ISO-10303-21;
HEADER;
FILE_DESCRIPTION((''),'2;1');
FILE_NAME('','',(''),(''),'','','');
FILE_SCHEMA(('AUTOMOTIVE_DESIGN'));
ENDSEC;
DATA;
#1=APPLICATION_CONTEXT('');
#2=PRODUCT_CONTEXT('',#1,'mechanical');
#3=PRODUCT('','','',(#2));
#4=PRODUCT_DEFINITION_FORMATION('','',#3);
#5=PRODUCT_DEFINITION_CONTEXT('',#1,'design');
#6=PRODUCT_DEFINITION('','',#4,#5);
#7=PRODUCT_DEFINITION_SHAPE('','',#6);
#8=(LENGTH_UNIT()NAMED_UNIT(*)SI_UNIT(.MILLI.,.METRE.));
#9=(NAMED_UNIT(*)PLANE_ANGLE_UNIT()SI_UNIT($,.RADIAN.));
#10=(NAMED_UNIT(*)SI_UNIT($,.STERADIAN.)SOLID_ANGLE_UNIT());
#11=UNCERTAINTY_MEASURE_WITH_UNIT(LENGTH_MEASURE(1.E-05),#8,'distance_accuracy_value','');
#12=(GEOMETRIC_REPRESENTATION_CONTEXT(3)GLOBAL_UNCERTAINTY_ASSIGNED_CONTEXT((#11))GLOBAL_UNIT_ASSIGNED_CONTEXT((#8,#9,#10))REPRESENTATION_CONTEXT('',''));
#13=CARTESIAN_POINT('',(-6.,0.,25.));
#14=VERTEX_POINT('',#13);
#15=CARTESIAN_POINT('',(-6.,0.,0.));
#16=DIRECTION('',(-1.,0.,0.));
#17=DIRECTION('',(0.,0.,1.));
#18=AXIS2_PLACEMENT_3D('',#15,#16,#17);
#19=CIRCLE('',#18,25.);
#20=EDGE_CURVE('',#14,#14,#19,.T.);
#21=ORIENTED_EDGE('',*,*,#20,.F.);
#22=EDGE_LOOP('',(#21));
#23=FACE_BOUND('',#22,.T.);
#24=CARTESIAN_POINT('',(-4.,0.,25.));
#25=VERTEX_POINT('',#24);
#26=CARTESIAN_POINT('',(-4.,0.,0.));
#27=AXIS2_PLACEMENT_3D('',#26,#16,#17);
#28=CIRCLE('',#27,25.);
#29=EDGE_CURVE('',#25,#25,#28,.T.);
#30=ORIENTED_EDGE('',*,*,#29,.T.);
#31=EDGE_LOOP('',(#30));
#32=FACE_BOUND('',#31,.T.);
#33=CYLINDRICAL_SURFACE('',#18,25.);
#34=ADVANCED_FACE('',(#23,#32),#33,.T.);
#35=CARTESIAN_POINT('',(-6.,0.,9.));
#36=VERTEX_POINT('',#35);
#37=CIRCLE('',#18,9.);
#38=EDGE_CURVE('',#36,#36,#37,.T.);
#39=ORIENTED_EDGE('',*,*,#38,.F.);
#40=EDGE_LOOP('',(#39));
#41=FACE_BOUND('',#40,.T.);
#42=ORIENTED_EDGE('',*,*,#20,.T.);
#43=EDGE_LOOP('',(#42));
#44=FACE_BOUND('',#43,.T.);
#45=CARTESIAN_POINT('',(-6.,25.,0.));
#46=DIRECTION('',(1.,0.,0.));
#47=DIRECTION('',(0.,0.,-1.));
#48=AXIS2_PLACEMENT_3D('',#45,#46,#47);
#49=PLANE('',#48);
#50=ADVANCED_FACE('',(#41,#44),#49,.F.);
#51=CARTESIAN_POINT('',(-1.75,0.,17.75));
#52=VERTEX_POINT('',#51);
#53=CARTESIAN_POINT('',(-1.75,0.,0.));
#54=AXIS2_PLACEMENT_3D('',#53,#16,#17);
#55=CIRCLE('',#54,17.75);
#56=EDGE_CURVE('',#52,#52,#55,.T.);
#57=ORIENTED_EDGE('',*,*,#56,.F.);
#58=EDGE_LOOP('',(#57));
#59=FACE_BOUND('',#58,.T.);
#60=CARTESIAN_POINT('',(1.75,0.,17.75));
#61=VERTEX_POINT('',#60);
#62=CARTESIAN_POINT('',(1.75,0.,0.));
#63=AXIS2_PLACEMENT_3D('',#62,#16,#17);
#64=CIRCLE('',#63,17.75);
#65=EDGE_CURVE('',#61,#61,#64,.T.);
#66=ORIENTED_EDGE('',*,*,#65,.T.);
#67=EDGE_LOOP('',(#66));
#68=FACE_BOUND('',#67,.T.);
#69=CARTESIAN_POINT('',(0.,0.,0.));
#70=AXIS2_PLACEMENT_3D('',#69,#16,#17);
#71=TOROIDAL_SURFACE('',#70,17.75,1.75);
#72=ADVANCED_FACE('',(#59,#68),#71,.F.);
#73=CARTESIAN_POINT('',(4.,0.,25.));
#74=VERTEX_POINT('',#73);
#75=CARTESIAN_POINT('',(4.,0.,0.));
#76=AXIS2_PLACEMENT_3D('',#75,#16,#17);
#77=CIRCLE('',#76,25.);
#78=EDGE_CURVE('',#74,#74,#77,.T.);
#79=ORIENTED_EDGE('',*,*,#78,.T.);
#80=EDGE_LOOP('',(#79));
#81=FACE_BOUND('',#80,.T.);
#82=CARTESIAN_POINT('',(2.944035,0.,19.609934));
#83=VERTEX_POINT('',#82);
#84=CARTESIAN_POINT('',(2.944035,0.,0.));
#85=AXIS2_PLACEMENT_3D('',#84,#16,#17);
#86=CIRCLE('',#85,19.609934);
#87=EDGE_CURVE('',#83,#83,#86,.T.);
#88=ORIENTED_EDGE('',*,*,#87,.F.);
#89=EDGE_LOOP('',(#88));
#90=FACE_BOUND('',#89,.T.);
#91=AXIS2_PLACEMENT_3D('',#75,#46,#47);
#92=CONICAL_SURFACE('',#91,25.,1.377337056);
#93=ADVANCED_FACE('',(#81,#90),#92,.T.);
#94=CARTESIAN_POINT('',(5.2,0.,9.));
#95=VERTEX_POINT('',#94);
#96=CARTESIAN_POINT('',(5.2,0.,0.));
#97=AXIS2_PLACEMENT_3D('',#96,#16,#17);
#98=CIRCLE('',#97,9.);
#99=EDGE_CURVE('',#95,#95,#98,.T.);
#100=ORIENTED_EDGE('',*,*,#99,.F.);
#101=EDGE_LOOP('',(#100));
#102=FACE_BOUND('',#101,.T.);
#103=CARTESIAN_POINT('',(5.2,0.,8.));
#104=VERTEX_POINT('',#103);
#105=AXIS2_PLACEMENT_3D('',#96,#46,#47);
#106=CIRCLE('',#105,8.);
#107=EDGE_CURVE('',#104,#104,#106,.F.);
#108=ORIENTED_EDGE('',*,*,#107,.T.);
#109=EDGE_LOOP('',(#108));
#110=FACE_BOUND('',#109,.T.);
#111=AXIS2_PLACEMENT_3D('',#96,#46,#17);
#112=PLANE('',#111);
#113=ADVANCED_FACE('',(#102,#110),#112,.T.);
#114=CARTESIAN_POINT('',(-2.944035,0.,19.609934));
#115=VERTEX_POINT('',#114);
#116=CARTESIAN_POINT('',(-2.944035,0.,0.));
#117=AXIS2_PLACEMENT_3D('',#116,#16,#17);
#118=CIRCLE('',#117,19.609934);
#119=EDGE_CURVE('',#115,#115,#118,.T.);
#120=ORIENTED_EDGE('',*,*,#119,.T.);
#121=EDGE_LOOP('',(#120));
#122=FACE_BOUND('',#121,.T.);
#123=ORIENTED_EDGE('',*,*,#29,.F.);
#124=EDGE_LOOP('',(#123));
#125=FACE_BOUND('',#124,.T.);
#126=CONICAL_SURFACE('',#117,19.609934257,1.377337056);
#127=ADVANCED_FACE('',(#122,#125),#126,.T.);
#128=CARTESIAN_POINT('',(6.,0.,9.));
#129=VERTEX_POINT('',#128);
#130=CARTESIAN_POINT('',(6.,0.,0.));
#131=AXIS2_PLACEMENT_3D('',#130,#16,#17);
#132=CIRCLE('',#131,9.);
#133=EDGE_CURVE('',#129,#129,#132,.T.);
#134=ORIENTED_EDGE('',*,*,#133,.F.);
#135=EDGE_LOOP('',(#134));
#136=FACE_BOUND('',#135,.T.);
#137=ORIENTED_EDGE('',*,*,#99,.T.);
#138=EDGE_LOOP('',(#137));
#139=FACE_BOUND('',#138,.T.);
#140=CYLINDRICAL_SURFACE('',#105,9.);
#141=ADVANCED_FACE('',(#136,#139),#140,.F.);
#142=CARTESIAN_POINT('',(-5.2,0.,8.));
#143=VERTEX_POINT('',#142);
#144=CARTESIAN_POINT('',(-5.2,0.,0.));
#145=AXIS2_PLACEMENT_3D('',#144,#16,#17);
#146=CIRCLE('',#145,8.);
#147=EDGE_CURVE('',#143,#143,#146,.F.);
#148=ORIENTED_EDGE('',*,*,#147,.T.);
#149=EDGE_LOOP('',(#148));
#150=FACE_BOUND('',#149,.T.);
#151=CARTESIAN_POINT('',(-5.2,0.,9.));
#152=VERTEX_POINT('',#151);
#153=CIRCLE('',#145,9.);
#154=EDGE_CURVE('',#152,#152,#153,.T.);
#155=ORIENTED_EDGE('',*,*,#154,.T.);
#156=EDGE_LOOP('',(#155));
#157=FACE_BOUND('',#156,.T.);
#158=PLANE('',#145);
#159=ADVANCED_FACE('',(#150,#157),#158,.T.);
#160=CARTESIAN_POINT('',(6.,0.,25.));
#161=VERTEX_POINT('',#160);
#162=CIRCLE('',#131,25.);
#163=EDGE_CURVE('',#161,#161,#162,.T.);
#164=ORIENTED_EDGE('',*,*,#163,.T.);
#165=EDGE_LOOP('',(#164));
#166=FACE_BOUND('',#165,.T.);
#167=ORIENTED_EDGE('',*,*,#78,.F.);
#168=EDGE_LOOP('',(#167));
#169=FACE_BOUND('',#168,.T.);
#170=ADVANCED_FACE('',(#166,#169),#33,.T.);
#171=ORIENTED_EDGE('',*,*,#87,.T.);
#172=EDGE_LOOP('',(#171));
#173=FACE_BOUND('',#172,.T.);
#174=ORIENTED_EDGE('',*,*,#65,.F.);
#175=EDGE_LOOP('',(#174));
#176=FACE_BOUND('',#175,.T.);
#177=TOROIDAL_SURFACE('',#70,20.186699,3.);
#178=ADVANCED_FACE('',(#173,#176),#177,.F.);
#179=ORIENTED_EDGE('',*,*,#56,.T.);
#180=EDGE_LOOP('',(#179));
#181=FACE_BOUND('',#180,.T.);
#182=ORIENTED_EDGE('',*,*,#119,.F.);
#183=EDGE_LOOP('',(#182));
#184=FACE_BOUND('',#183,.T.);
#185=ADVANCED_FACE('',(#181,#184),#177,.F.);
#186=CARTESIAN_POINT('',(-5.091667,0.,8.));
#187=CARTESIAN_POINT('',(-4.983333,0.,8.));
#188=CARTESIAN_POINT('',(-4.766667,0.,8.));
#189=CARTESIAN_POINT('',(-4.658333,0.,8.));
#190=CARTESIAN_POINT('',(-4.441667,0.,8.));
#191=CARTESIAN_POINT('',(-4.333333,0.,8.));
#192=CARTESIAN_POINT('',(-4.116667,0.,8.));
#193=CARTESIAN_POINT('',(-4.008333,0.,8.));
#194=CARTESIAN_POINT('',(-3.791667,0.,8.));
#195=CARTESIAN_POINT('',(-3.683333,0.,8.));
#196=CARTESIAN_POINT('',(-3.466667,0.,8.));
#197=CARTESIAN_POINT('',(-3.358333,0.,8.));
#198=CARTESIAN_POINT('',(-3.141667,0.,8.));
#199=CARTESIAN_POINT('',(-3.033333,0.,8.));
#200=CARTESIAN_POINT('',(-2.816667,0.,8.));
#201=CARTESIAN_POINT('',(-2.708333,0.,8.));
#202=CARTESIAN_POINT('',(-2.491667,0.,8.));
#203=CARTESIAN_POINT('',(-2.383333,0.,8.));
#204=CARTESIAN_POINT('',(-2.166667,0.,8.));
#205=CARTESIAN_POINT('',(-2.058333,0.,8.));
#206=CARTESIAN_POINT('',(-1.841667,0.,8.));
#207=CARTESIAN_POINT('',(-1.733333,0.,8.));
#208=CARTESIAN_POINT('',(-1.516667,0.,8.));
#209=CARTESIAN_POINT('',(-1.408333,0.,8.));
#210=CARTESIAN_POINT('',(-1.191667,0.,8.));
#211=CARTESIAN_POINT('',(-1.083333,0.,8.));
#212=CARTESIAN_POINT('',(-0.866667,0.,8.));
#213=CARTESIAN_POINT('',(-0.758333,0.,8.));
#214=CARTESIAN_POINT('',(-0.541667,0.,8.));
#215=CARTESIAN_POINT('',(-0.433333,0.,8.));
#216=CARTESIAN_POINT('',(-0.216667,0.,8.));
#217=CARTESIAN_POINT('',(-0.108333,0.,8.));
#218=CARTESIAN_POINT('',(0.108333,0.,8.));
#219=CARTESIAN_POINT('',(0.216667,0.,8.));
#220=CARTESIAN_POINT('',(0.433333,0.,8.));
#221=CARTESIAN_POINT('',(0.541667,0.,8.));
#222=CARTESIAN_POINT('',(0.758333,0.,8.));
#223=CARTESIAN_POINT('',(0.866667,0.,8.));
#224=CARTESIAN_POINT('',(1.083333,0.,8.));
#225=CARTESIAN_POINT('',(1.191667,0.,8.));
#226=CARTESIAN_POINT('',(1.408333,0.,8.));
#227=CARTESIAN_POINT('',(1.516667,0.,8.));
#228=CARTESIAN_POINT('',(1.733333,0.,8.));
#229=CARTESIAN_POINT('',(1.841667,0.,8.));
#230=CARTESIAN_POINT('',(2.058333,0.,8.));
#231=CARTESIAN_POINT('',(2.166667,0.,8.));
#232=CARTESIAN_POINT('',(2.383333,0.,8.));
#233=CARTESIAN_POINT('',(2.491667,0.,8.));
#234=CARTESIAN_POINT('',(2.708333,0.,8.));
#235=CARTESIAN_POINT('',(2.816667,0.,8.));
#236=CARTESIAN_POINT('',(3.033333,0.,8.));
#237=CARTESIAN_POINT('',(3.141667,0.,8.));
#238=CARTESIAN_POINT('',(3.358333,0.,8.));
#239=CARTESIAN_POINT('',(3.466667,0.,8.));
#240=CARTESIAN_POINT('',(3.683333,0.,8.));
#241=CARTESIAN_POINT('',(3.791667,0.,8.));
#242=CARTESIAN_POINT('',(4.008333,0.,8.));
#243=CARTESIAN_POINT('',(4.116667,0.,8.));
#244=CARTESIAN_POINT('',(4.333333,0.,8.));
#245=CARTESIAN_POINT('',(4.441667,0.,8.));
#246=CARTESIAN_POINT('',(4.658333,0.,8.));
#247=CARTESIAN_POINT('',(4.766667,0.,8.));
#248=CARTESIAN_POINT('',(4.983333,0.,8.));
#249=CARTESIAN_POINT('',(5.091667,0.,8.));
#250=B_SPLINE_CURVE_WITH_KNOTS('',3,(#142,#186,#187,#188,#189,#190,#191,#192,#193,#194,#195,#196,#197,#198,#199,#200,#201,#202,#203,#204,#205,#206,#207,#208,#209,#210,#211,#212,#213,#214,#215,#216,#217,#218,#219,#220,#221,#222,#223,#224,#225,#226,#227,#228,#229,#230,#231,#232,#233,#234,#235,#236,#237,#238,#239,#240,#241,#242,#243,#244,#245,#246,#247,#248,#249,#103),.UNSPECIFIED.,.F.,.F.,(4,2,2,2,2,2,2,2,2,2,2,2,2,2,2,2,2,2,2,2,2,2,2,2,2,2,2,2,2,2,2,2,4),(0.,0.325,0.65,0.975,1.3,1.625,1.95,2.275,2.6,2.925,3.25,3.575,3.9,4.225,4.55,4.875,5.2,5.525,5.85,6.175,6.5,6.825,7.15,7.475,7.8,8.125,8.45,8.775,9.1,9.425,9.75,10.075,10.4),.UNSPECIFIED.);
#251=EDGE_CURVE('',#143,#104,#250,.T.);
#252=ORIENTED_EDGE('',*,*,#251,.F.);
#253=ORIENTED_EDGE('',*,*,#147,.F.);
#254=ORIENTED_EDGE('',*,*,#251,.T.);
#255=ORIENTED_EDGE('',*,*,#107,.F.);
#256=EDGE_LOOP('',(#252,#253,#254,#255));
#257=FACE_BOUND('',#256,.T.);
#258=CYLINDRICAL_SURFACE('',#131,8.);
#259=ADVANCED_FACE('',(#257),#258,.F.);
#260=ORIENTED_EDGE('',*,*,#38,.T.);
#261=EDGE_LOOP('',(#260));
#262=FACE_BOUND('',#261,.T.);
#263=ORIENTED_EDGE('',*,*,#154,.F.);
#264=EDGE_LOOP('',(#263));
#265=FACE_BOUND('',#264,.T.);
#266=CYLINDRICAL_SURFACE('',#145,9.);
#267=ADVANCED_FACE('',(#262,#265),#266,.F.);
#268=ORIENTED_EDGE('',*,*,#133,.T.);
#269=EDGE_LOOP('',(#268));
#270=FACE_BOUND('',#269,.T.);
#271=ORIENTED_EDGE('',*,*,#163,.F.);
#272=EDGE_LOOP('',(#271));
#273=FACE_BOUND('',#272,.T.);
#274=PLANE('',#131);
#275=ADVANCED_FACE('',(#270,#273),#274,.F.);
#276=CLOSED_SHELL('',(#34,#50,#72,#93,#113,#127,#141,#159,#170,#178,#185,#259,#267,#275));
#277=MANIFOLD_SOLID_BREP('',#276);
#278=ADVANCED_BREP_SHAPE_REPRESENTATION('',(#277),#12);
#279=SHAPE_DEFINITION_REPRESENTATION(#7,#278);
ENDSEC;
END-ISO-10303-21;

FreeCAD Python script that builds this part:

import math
import FreeCAD as App
import Part
import Sketcher

V = App.Vector

doc = App.newDocument("Part")
body = doc.addObject("PartDesign::Body", "Body")

sketch1 = body.newObject("Sketcher::SketchObject", "Sketch")
sketch1.AttachmentSupport = (doc.getObject("XY_Plane"), [""])
sketch1.MapMode = "FlatFace"
sketch1.addGeometry([
    Part.LineSegment(V(-2.9, 19.6, 0), V(-4, 25, 0)),
    Part.LineSegment(V(-4, 25, 0), V(-6, 25, 0)),
    Part.LineSegment(V(-6, 25, 0), V(-6, 0, 0)),
    Part.LineSegment(V(-6, 0, 0), V(6, 0, 0)),
    Part.LineSegment(V(6, 0, 0), V(6, 25, 0)),
    Part.LineSegment(V(6, 25, 0), V(4, 25, 0)),
    Part.LineSegment(V(4, 25, 0), V(2.9, 19.6, 0)),
    Part.ArcOfCircle(Part.Circle(V(0, 20.2, 0), V(0, 0, 1), 3), math.radians(-54), math.radians(-11)),
    Part.ArcOfCircle(Part.Circle(V(0, 17.8, 0), V(0, 0, 1), 1.8), math.radians(180), math.radians(360)),
    Part.ArcOfCircle(Part.Circle(V(0, 20.2, 0), V(0, 0, 1), 3), math.radians(-169), math.radians(-126)),
], False)
sketch1.addConstraint([
    Sketcher.Constraint("Coincident", 0, 2, 1, 1),
    Sketcher.Constraint("Coincident", 1, 2, 2, 1),
    Sketcher.Constraint("Coincident", 2, 2, 3, 1),
    Sketcher.Constraint("Coincident", 3, 2, 4, 1),
    Sketcher.Constraint("Coincident", 4, 2, 5, 1),
    Sketcher.Constraint("Coincident", 5, 2, 6, 1),
    Sketcher.Constraint("Tangent", 6, 2, 7, 2),
    Sketcher.Constraint("Coincident", 7, 1, 8, 2),
    Sketcher.Constraint("Coincident", 8, 1, 9, 2),
    Sketcher.Constraint("Tangent", 9, 1, 0, 1),
    Sketcher.Constraint("Horizontal", 1),
    Sketcher.Constraint("Vertical", 2),
    Sketcher.Constraint("Horizontal", 3),
    Sketcher.Constraint("Vertical", 4),
    Sketcher.Constraint("Horizontal", 5),
    Sketcher.Constraint("Coincident", 9, 3, 7, 3),
    Sketcher.Constraint("Equal", 7, 9),
    Sketcher.Constraint("Symmetric", 2, 2, 3, 2, -1, 1),
    Sketcher.Constraint("Symmetric", 0, 2, 5, 2, -2),
    Sketcher.Constraint("Symmetric", 7, 1, 8, 1, -2),
    Sketcher.Constraint("Horizontal", 8, 3, 7, 1),
    Sketcher.Constraint("Radius", 7, 3.0),
    Sketcher.Constraint("DistanceX", 1, 2, 1, 1, 2.0),
    Sketcher.Constraint("DistanceX", 3, 1, 3, 2, 12.0),
    Sketcher.Constraint("DistanceY", 2, 2, 2, 1, 25.0),
    Sketcher.Constraint("Radius", 8, 1.75),
    Sketcher.Constraint("DistanceY", -1, 1, 8, 3, 17.75),
])
revolution = body.newObject("PartDesign::Revolution", "Revolution")
revolution.Profile = sketch1
revolution.ReferenceAxis = (sketch1, ["H_Axis"])
revolution.Angle = 360

sketch2 = body.newObject("Sketcher::SketchObject", "Sketch001")
sketch2.AttachmentSupport = (doc.getObject("YZ_Plane"), [""])
sketch2.MapMode = "FlatFace"
sketch2.AttachmentOffset = App.Placement(V(0, 0, -6), App.Rotation())
sketch2.addGeometry(Part.Circle(V(0, 0, 0), V(0, 0, 1), 8), False)
sketch2.addConstraint([
    Sketcher.Constraint("Coincident", 0, 3, -1, 1),
    Sketcher.Constraint("Diameter", 0, 16.0),
])
pocket1 = body.newObject("PartDesign::Pocket", "Pocket")
pocket1.Profile = sketch2
pocket1.Type = "ThroughAll"
pocket1.Reversed = True

sketch3 = body.newObject("Sketcher::SketchObject", "Sketch002")
sketch3.AttachmentSupport = (doc.getObject("YZ_Plane"), [""])
sketch3.MapMode = "FlatFace"
sketch3.AttachmentOffset = App.Placement(V(0, 0, -6), App.Rotation())
sketch3.addGeometry(Part.Circle(V(0, 0, 0), V(0, 0, 1), 9), False)
sketch3.addConstraint([
    Sketcher.Constraint("Coincident", 0, 3, -1, 1),
    Sketcher.Constraint("Diameter", 0, 18.0),
])
pocket2 = body.newObject("PartDesign::Pocket", "Pocket001")
pocket2.Profile = sketch3
pocket2.Length = 0.8
pocket2.Reversed = True
doc.recompute()

mirrored = body.newObject("PartDesign::Mirrored", "Mirrored")
mirrored.Originals = [pocket2]
mirrored.MirrorPlane = (doc.getObject("YZ_Plane"), [""])
body.Tip = mirrored

doc.recompute()
